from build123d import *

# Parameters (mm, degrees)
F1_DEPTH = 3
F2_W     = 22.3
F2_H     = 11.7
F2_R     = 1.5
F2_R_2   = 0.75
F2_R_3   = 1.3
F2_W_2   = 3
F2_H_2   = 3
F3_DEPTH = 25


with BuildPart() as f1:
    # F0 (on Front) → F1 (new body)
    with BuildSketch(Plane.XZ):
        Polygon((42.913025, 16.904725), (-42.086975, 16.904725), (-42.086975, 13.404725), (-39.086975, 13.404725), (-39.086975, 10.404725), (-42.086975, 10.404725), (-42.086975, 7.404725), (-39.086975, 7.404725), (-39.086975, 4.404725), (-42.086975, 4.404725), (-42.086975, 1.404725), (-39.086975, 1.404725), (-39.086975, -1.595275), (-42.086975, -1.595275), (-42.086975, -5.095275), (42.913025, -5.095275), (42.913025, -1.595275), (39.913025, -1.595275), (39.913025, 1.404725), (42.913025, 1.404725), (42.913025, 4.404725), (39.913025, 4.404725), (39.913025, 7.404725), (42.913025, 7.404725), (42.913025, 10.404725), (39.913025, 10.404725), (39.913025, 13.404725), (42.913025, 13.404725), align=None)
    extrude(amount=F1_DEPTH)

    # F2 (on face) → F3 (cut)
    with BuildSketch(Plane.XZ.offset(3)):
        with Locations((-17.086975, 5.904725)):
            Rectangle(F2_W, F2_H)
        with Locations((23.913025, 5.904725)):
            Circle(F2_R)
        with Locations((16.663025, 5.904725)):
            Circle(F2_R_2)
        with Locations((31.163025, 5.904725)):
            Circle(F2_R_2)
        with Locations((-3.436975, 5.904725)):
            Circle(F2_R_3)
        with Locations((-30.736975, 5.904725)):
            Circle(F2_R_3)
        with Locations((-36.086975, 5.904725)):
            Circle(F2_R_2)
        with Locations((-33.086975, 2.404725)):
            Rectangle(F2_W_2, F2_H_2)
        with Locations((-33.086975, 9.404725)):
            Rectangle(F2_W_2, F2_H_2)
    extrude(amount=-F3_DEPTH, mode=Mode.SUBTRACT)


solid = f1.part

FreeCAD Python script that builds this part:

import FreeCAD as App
import Part
import Sketcher

doc = App.newDocument("Part")
body = doc.addObject("PartDesign::Body", "Body")

sketch1 = doc.addObject("Sketcher::SketchObject", "Sketch")
body.addObject(sketch1)
sketch1.AttachmentSupport = (doc.XZ_Plane, [""])
sketch1.MapMode = "FlatFace"
sketch1.addGeometry([
    Part.LineSegment(App.Vector(42.9, 16.9, 0), App.Vector(-42.1, 16.9, 0)),
    Part.LineSegment(App.Vector(-42.1, 16.9, 0), App.Vector(-42.1, 13.4, 0)),
    Part.LineSegment(App.Vector(-42.1, 13.4, 0), App.Vector(-39.1, 13.4, 0)),
    Part.LineSegment(App.Vector(-39.1, 13.4, 0), App.Vector(-39.1, 10.4, 0)),
    Part.LineSegment(App.Vector(-39.1, 10.4, 0), App.Vector(-42.1, 10.4, 0)),
    Part.LineSegment(App.Vector(-42.1, 10.4, 0), App.Vector(-42.1, 7.4, 0)),
    Part.LineSegment(App.Vector(-42.1, 7.4, 0), App.Vector(-39.1, 7.4, 0)),
    Part.LineSegment(App.Vector(-39.1, 7.4, 0), App.Vector(-39.1, 4.4, 0)),
    Part.LineSegment(App.Vector(-39.1, 4.4, 0), App.Vector(-42.1, 4.4, 0)),
    Part.LineSegment(App.Vector(-42.1, 4.4, 0), App.Vector(-42.1, 1.4, 0)),
    Part.LineSegment(App.Vector(-42.1, 1.4, 0), App.Vector(-39.1, 1.4, 0)),
    Part.LineSegment(App.Vector(-39.1, 1.4, 0), App.Vector(-39.1, -1.6, 0)),
    Part.LineSegment(App.Vector(-39.1, -1.6, 0), App.Vector(-42.1, -1.6, 0)),
    Part.LineSegment(App.Vector(-42.1, -1.6, 0), App.Vector(-42.1, -5.1, 0)),
    Part.LineSegment(App.Vector(-42.1, -5.1, 0), App.Vector(42.9, -5.1, 0)),
    Part.LineSegment(App.Vector(42.9, -5.1, 0), App.Vector(42.9, -1.6, 0)),
    Part.LineSegment(App.Vector(42.9, -1.6, 0), App.Vector(39.9, -1.6, 0)),
    Part.LineSegment(App.Vector(39.9, -1.6, 0), App.Vector(39.9, 1.4, 0)),
    Part.LineSegment(App.Vector(39.9, 1.4, 0), App.Vector(42.9, 1.4, 0)),
    Part.LineSegment(App.Vector(42.9, 1.4, 0), App.Vector(42.9, 4.4, 0)),
    Part.LineSegment(App.Vector(42.9, 4.4, 0), App.Vector(39.9, 4.4, 0)),
    Part.LineSegment(App.Vector(39.9, 4.4, 0), App.Vector(39.9, 7.4, 0)),
    Part.LineSegment(App.Vector(39.9, 7.4, 0), App.Vector(42.9, 7.4, 0)),
    Part.LineSegment(App.Vector(42.9, 7.4, 0), App.Vector(42.9, 10.4, 0)),
    Part.LineSegment(App.Vector(42.9, 10.4, 0), App.Vector(39.9, 10.4, 0)),
    Part.LineSegment(App.Vector(39.9, 10.4, 0), App.Vector(39.9, 13.4, 0)),
    Part.LineSegment(App.Vector(39.9, 13.4, 0), App.Vector(42.9, 13.4, 0)),
    Part.LineSegment(App.Vector(42.9, 13.4, 0), App.Vector(42.9, 16.9, 0)),
], False)
sketch1.addConstraint([
    Sketcher.Constraint("Coincident", 0, 2, 1, 1),
    Sketcher.Constraint("Coincident", 1, 2, 2, 1),
    Sketcher.Constraint("Coincident", 2, 2, 3, 1),
    Sketcher.Constraint("Coincident", 3, 2, 4, 1),
    Sketcher.Constraint("Coincident", 4, 2, 5, 1),
    Sketcher.Constraint("Coincident", 5, 2, 6, 1),
    Sketcher.Constraint("Coincident", 6, 2, 7, 1),
    Sketcher.Constraint("Coincident", 7, 2, 8, 1),
    Sketcher.Constraint("Coincident", 8, 2, 9, 1),
    Sketcher.Constraint("Coincident", 9, 2, 10, 1),
    Sketcher.Constraint("Coincident", 10, 2, 11, 1),
    Sketcher.Constraint("Coincident", 11, 2, 12, 1),
    Sketcher.Constraint("Coincident", 12, 2, 13, 1),
    Sketcher.Constraint("Coincident", 13, 2, 14, 1),
    Sketcher.Constraint("Coincident", 14, 2, 15, 1),
    Sketcher.Constraint("Coincident", 15, 2, 16, 1),
    Sketcher.Constraint("Coincident", 16, 2, 17, 1),
    Sketcher.Constraint("Coincident", 17, 2, 18, 1),
    Sketcher.Constraint("Coincident", 18, 2, 19, 1),
    Sketcher.Constraint("Coincident", 19, 2, 20, 1),
    Sketcher.Constraint("Coincident", 20, 2, 21, 1),
    Sketcher.Constraint("Coincident", 21, 2, 22, 1),
    Sketcher.Constraint("Coincident", 22, 2, 23, 1),
    Sketcher.Constraint("Coincident", 23, 2, 24, 1),
    Sketcher.Constraint("Coincident", 24, 2, 25, 1),
    Sketcher.Constraint("Coincident", 25, 2, 26, 1),
    Sketcher.Constraint("Coincident", 26, 2, 27, 1),
    Sketcher.Constraint("Coincident", 27, 2, 0, 1),
    Sketcher.Constraint("Horizontal", 0),
    Sketcher.Constraint("Vertical", 1),
    Sketcher.Constraint("Horizontal", 2),
    Sketcher.Constraint("Vertical", 3),
    Sketcher.Constraint("Horizontal", 4),
    Sketcher.Constraint("Vertical", 5),
    Sketcher.Constraint("Horizontal", 6),
    Sketcher.Constraint("Vertical", 7),
    Sketcher.Constraint("Horizontal", 8),
    Sketcher.Constraint("Vertical", 9),
    Sketcher.Constraint("Horizontal", 10),
    Sketcher.Constraint("Vertical", 11),
    Sketcher.Constraint("Horizontal", 12),
    Sketcher.Constraint("Vertical", 13),
    Sketcher.Constraint("Horizontal", 14),
    Sketcher.Constraint("Vertical", 15),
    Sketcher.Constraint("Horizontal", 16),
    Sketcher.Constraint("Vertical", 17),
    Sketcher.Constraint("Horizontal", 18),
    Sketcher.Constraint("Vertical", 19),
    Sketcher.Constraint("Horizontal", 20),
    Sketcher.Constraint("Vertical", 21),
    Sketcher.Constraint("Horizontal", 22),
    Sketcher.Constraint("Vertical", 23),
    Sketcher.Constraint("Horizontal", 24),
    Sketcher.Constraint("Vertical", 25),
    Sketcher.Constraint("Horizontal", 26),
    Sketcher.Constraint("Vertical", 27),
    Sketcher.Constraint("Horizontal", 12, 2, 15, 2),
    Sketcher.Constraint("Horizontal", 10, 2, 17, 2),
    Sketcher.Constraint("Horizontal", 8, 2, 19, 2),
    Sketcher.Constraint("Horizontal", 6, 2, 21, 2),
    Sketcher.Constraint("Horizontal", 4, 2, 23, 2),
    Sketcher.Constraint("Horizontal", 2, 2, 25, 2),
    Sketcher.Constraint("Vertical", 1, 2, 4, 2),
    Sketcher.Constraint("Vertical", 3, 2, 6, 2),
    Sketcher.Constraint("Vertical", 5, 2, 8, 2),
    Sketcher.Constraint("Vertical", 7, 2, 10, 2),
    Sketcher.Constraint("Vertical", 9, 2, 12, 2),
    Sketcher.Constraint("Vertical", 15, 2, 18, 2),
    Sketcher.Constraint("Vertical", 17, 2, 20, 2),
    Sketcher.Constraint("Vertical", 19, 2, 22, 2),
    Sketcher.Constraint("Vertical", 21, 2, 24, 2),
    Sketcher.Constraint("Vertical", 23, 2, 26, 2),
    Sketcher.Constraint("Equal", 12, 16),
    Sketcher.Constraint("Equal", 26, 3),
    Sketcher.Constraint("Equal", 3, 5),
    Sketcher.Constraint("Equal", 5, 7),
    Sketcher.Constraint("Equal", 7, 9),
    Sketcher.Constraint("Equal", 9, 11),
    Sketcher.Constraint("Equal", 1, 13),
    Sketcher.Constraint("DistanceX", 0, 2, 0, 1, 85.0),
    Sketcher.Constraint("DistanceX", 2, 1, 2, 2, 3.0),
    Sketcher.Constraint("DistanceY", 1, 2, 1, 1, 3.5),
    Sketcher.Constraint("DistanceX", 0, 2, -1, 1, 42.086975),
    Sketcher.Constraint("DistanceY", -1, 1, 0, 2, 16.904725),
])
pad1 = doc.addObject("PartDesign::Pad", "Pad")
body.addObject(pad1)
pad1.Profile = sketch1
pad1.Length = 3

sketch2 = doc.addObject("Sketcher::SketchObject", "Sketch001")
body.addObject(sketch2)
sketch2.AttachmentSupport = (doc.XZ_Plane, [""])
sketch2.MapMode = "FlatFace"
sketch2.AttachmentOffset = App.Placement(App.Vector(0, 0, 3), App.Rotation())
sketch2.addGeometry([
    Part.LineSegment(App.Vector(-28.2, 11.8, 0), App.Vector(-28.2, 0.1, 0)),
    Part.LineSegment(App.Vector(-28.2, 0.1, 0), App.Vector(-5.9, 0.1, 0)),
    Part.LineSegment(App.Vector(-5.9, 0.1, 0), App.Vector(-5.9, 11.8, 0)),
    Part.LineSegment(App.Vector(-5.9, 11.8, 0), App.Vector(-28.2, 11.8, 0)),
    Part.Circle(App.Vector(23.9, 5.9, 0), App.Vector(0, 0, 1), 1.5),
    Part.Circle(App.Vector(16.7, 5.9, 0), App.Vector(0, 0, 1), 0.8),
    Part.Circle(App.Vector(31.2, 5.9, 0), App.Vector(0, 0, 1), 0.8),
    Part.Circle(App.Vector(-3.4, 5.9, 0), App.Vector(0, 0, 1), 1.3),
    Part.Circle(App.Vector(-30.7, 5.9, 0), App.Vector(0, 0, 1), 1.3),
    Part.Circle(App.Vector(-36.1, 5.9, 0), App.Vector(0, 0, 1), 0.8),
    Part.LineSegment(App.Vector(-34.6, 3.9, 0), App.Vector(-34.6, 0.9, 0)),
    Part.LineSegment(App.Vector(-34.6, 0.9, 0), App.Vector(-31.6, 0.9, 0)),
    Part.LineSegment(App.Vector(-31.6, 0.9, 0), App.Vector(-31.6, 3.9, 0)),
    Part.LineSegment(App.Vector(-31.6, 3.9, 0), App.Vector(-34.6, 3.9, 0)),
    Part.LineSegment(App.Vector(-34.6, 10.9, 0), App.Vector(-34.6, 7.9, 0)),
    Part.LineSegment(App.Vector(-34.6, 7.9, 0), App.Vector(-31.6, 7.9, 0)),
    Part.LineSegment(App.Vector(-31.6, 7.9, 0), App.Vector(-31.6, 10.9, 0)),
    Part.LineSegment(App.Vector(-31.6, 10.9, 0), App.Vector(-34.6, 10.9, 0)),
], False)
sketch2.addConstraint([
    Sketcher.Constraint("Coincident", 0, 2, 1, 1),
    Sketcher.Constraint("Coincident", 1, 2, 2, 1),
    Sketcher.Constraint("Coincident", 2, 2, 3, 1),
    Sketcher.Constraint("Coincident", 3, 2, 0, 1),
    Sketcher.Constraint("Coincident", 10, 2, 11, 1),
    Sketcher.Constraint("Coincident", 11, 2, 12, 1),
    Sketcher.Constraint("Coincident", 12, 2, 13, 1),
    Sketcher.Constraint("Coincident", 13, 2, 10, 1),
    Sketcher.Constraint("Coincident", 14, 2, 15, 1),
    Sketcher.Constraint("Coincident", 15, 2, 16, 1),
    Sketcher.Constraint("Coincident", 16, 2, 17, 1),
    Sketcher.Constraint("Coincident", 17, 2, 14, 1),
    Sketcher.Constraint("Vertical", 0),
    Sketcher.Constraint("Horizontal", 1),
    Sketcher.Constraint("Vertical", 2),
    Sketcher.Constraint("Horizontal", 3),
    Sketcher.Constraint("Vertical", 10),
    Sketcher.Constraint("Horizontal", 11),
    Sketcher.Constraint("Vertical", 12),
    Sketcher.Constraint("Horizontal", 13),
    Sketcher.Constraint("Vertical", 14),
    Sketcher.Constraint("Horizontal", 15),
    Sketcher.Constraint("Vertical", 16),
    Sketcher.Constraint("Horizontal", 17),
    Sketcher.Constraint("Equal", 5, 6),
    Sketcher.Constraint("Equal", 7, 8),
    Sketcher.Constraint("Equal", 6, 9),
    Sketcher.Constraint("Horizontal", 4, 3, 5, 3),
    Sketcher.Constraint("Horizontal", 5, 3, 6, 3),
    Sketcher.Constraint("Horizontal", 6, 3, 7, 3),
    Sketcher.Constraint("Horizontal", 7, 3, 8, 3),
    Sketcher.Constraint("Horizontal", 8, 3, 9, 3),
    Sketcher.Constraint("Vertical", 13, 2, 14, 2),
    Sketcher.Constraint("Vertical", 12, 2, 15, 2),
    Sketcher.Constraint("Equal", 17, 10),
    Sketcher.Constraint("Equal", 12, 14),
    Sketcher.Constraint("Diameter", 4, 3.0),
    Sketcher.Constraint("Diameter", 5, 1.5),
    Sketcher.Constraint("Diameter", 7, 2.6),
    Sketcher.Constraint("DistanceX", 11, 1, 11, 2, 3.0),
    Sketcher.Constraint("DistanceX", 1, 1, 1, 2, 22.3),
    Sketcher.Constraint("DistanceY", 0, 2, 0, 1, 11.7),
    Sketcher.Constraint("DistanceX", 9, 3, 4, 3, 60.0),
    Sketcher.Constraint("DistanceY", 10, 2, 9, 3, 5.0),
    Sketcher.Constraint("DistanceY", 9, 3, 14, 2, 2.0),
    Sketcher.Constraint("DistanceX", 5, 3, 6, 3, 14.5),
    Sketcher.Constraint("DistanceX", 7, 3, 5, 3, 20.1),
    Sketcher.Constraint("DistanceX", 8, 3, 7, 3, 27.3),
    Sketcher.Constraint("DistanceX", 8, 3, 0, 2, 2.5),
    Sketcher.Constraint("DistanceX", 9, 3, 10, 2, 1.5),
    Sketcher.Constraint("DistanceX", 5, 3, 4, 3, 7.25),
    Sketcher.Constraint("DistanceY", 0, 2, 8, 3, 5.85),
    Sketcher.Constraint("DistanceX", -1, 1, 4, 3, 23.913025),
    Sketcher.Constraint("DistanceY", -1, 1, 4, 3, 5.904725),
])
pocket1 = doc.addObject("PartDesign::Pocket", "Pocket")
body.addObject(pocket1)
pocket1.Profile = sketch2
pocket1.Length = 25

doc.recompute()
